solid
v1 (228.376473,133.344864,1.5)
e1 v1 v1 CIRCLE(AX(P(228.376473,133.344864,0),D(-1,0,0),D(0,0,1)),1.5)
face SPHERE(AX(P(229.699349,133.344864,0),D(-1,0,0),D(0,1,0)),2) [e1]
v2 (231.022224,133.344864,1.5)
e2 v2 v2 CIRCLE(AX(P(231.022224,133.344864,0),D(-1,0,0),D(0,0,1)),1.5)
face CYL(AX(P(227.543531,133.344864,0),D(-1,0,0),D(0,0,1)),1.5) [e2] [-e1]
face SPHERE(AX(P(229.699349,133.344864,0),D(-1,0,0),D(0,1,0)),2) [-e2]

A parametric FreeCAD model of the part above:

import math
import FreeCAD as App
import Part
import Sketcher
from FreeCAD import Vector
Q = App.Units.Quantity

doc = App.newDocument("Part")
params = doc.addObject("Spreadsheet::Sheet", "Params")
for row, (alias, value) in enumerate([
    ("sketch1_radius", "2 mm"),
    ("revolution_angle", "360 deg"),
], start=1):
    params.set(f"A{row}", alias)
    params.set(f"B{row}", "=" + value)
    params.setAlias(f"B{row}", alias)

body = doc.addObject("PartDesign::Body", "Body")

# Sketch on XY plane
sketch1 = body.newObject("Sketcher::SketchObject", "Sketch")
sketch1.AttachmentSupport = (doc.getObject("XY_Plane"), [""])
sketch1.MapMode = "FlatFace"
sketch1.addGeometry([
    Part.LineSegment(Vector(231.022224, 134.844864, 0), Vector(228.376473, 134.844864, 0)),
    Part.ArcOfCircle(Part.Circle(Vector(229.699349, 133.344864, 0), Vector(0, 0, 1), 2), math.radians(131.409622), math.radians(180)),
    Part.LineSegment(Vector(227.699349, 133.344864, 0), Vector(231.699349, 133.344864, 0)),
    Part.ArcOfCircle(Part.Circle(Vector(229.699349, 133.344864, 0), Vector(0, 0, 1), 2), math.radians(0), math.radians(48.590378)),
], False)
sketch1.addGeometry(Part.LineSegment(Vector(227.699349, 133.344864, 0), Vector(231.699349, 133.344864, 0)), True)  # axis
sketch1.addConstraint([
    Sketcher.Constraint("Coincident", 0, 2, 1, 1),
    Sketcher.Constraint("Coincident", 1, 2, 2, 1),
    Sketcher.Constraint("Coincident", 2, 2, 3, 1),
    Sketcher.Constraint("Coincident", 3, 2, 0, 1),
    Sketcher.Constraint("Horizontal", 0),
    Sketcher.Constraint("Horizontal", 2),
    Sketcher.Constraint("Horizontal", 4),
    Sketcher.Constraint("Coincident", 3, 3, 1, 3),
    Sketcher.Constraint("Coincident", 4, 1, 1, 2),
    Sketcher.Constraint("Equal", 1, 3),
    Sketcher.Constraint("Horizontal", 3, 3, 1, 2),
    Sketcher.Constraint("Equal", 2, 4),
    Sketcher.Constraint("Radius", 1, Q("2 mm")),
    Sketcher.Constraint("DistanceY", 3, 3, 0, 2, Q("1.5 mm")),
    Sketcher.Constraint("DistanceX", -1, 1, 1, 3, Q("229.699349 mm")),
    Sketcher.Constraint("DistanceY", -1, 1, 1, 3, Q("133.344864 mm")),
])
sketch1.setExpression("Constraints[12]", "Params.sketch1_radius")
revolution = body.newObject("PartDesign::Revolution", "Revolution")
revolution.Profile = sketch1
revolution.ReferenceAxis = (sketch1, ["Axis0"])
revolution.setExpression("Angle", "Params.revolution_angle")

doc.recompute()
